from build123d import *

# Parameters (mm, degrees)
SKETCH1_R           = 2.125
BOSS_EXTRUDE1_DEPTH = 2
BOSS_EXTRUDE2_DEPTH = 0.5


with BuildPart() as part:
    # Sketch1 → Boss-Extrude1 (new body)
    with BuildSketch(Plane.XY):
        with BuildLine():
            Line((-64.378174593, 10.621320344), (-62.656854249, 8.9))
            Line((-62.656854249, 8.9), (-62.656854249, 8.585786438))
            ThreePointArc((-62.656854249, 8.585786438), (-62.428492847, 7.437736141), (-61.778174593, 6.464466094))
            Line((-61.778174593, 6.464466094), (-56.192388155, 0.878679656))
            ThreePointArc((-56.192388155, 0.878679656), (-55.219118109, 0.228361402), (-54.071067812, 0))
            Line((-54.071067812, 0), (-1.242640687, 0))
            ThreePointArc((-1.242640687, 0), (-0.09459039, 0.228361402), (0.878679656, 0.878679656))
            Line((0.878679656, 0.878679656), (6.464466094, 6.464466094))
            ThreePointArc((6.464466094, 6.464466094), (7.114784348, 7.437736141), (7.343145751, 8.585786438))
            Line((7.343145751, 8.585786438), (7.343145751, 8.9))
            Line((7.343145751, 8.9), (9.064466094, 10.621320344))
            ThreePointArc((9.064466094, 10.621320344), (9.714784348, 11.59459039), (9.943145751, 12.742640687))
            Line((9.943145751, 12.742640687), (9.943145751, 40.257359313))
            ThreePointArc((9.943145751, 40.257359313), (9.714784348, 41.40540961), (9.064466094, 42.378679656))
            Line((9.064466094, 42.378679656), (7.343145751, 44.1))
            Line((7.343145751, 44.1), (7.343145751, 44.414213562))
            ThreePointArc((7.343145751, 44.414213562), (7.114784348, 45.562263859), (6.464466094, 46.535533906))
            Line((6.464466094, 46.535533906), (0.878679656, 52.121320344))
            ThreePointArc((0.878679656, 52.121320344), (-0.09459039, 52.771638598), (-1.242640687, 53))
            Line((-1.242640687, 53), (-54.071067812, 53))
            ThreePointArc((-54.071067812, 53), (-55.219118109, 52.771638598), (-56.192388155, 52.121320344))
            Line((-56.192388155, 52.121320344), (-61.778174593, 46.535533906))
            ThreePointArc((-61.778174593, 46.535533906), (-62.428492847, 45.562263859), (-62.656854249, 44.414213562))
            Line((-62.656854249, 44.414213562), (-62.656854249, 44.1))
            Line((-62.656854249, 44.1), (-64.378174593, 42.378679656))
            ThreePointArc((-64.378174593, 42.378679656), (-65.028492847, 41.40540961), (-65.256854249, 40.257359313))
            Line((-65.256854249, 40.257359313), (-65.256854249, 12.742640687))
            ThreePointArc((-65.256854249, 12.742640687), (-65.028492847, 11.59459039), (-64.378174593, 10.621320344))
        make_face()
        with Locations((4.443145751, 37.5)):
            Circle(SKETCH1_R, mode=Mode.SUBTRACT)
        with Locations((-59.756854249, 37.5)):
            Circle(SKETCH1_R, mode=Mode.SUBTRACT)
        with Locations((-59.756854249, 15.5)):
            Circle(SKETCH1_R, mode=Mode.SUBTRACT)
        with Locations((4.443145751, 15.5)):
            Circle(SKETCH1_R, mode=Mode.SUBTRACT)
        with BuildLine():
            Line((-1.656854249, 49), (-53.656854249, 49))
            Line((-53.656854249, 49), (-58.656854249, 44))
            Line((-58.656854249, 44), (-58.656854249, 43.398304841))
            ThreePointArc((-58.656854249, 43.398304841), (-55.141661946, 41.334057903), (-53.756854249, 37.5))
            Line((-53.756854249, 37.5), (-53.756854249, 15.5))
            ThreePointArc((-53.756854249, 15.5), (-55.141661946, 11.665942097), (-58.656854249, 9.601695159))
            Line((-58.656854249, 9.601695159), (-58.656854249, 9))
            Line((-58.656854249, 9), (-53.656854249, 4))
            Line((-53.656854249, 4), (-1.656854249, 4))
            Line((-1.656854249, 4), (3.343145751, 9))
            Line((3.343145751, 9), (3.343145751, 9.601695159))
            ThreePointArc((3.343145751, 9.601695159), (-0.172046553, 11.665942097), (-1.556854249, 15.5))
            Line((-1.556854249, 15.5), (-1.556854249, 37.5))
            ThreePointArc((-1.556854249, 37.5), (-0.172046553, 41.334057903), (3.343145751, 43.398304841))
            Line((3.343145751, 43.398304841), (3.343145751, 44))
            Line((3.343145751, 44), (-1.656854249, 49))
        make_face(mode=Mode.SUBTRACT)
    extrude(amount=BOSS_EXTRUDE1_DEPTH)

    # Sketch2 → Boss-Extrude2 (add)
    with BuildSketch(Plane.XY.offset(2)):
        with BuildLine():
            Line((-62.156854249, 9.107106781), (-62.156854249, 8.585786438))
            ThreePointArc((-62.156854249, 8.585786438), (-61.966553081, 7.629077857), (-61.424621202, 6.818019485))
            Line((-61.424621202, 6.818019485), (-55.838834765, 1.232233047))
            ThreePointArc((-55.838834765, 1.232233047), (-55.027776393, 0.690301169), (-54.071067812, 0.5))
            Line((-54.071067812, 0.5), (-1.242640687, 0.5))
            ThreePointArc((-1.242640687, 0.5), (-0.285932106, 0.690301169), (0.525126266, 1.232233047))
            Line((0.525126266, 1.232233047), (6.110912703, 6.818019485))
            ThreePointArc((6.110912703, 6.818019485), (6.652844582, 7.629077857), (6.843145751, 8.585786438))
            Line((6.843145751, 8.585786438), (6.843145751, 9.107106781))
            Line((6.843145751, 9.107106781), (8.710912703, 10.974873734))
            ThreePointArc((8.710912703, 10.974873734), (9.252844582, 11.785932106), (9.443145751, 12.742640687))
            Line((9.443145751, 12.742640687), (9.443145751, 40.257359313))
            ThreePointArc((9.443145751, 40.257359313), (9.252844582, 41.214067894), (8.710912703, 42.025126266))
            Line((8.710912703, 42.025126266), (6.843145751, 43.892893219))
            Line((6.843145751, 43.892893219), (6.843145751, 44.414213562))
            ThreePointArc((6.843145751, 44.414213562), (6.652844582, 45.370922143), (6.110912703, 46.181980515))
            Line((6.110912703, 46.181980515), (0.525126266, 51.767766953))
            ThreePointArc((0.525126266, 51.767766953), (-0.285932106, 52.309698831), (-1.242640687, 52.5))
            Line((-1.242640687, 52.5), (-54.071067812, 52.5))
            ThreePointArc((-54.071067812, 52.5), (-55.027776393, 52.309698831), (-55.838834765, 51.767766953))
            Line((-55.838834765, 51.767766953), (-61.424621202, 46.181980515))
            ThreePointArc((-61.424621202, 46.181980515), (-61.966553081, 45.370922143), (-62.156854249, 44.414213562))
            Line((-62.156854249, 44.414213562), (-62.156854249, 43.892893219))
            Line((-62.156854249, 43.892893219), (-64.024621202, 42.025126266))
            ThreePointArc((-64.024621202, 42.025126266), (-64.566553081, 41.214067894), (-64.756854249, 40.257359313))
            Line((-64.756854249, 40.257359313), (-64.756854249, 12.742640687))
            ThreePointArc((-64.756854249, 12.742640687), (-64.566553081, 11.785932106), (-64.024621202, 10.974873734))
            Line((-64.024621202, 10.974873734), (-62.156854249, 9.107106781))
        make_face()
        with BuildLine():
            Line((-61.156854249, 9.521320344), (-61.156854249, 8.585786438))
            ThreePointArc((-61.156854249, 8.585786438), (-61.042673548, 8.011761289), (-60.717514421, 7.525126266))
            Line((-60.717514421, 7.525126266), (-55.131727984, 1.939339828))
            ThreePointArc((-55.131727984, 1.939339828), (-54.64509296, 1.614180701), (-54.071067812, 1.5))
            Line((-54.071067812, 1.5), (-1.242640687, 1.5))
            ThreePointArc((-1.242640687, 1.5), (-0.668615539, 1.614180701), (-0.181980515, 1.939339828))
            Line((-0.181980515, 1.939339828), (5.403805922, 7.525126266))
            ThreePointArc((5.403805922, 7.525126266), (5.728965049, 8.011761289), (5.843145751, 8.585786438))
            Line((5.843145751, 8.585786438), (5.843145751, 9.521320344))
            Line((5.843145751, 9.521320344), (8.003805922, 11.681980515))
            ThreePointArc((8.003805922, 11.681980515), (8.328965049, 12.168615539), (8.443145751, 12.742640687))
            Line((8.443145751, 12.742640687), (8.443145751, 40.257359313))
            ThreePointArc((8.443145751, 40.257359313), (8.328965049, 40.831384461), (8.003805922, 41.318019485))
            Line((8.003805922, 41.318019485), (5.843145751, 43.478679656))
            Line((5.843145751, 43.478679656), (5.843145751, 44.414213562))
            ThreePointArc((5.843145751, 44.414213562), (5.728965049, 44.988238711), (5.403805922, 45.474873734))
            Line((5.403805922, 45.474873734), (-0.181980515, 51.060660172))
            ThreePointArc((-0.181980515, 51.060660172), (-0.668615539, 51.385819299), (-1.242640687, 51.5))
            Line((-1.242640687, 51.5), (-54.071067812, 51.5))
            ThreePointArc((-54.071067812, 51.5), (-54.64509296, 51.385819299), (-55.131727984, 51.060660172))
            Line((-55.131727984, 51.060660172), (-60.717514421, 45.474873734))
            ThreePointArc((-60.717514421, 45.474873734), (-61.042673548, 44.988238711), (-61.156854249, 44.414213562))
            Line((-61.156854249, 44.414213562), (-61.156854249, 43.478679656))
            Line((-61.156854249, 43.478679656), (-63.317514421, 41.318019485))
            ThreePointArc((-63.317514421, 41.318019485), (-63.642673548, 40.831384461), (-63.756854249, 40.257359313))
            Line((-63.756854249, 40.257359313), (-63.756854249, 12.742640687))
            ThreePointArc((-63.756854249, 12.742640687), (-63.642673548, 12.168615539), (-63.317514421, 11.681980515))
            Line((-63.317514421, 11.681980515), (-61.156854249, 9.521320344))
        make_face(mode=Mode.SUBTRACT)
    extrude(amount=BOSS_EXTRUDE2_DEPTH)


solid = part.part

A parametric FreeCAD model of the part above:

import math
import FreeCAD as App
import Part
import Sketcher
from FreeCAD import Vector

doc = App.newDocument("Part")
params = doc.addObject("Spreadsheet::Sheet", "Params")
for row, (alias, value) in enumerate([
    ("sketch1_radius", "3 mm"),
    ("sketch1_radius2", "6 mm"),
    ("sketch1_diameter", "4.25 mm"),
    ("sketch1_width", "52 mm"),
    ("sketch1_height", "22 mm"),
    ("pad1_length", "2 mm"),
    ("sketch2_radius", "2.5 mm"),
    ("sketch2_radius2", "1.5 mm"),
    ("pad2_length", "0.5 mm"),
], start=1):
    params.set(f"A{row}", alias)
    params.set(f"B{row}", "=" + value)
    params.setAlias(f"B{row}", alias)

body = doc.addObject("PartDesign::Body", "Body")

# Sketch on XY plane
sketch1 = body.newObject("Sketcher::SketchObject", "Sketch")
sketch1.AttachmentSupport = (doc.getObject("XY_Plane"), [""])
sketch1.MapMode = "FlatFace"
sketch1.addGeometry(Part.LineSegment(Vector(-64.38, 10.62, 0), Vector(-62.66, 8.9, 0)), False)
sketch1.addGeometry(Part.LineSegment(Vector(-62.66, 8.9, 0), Vector(-62.66, 8.59, 0)), False)
sketch1.addGeometry(Part.ArcOfCircle(Part.Circle(Vector(-59.66, 8.59, 0), Vector(0, 0, 1), 3), math.radians(180), math.radians(225)), False)
sketch1.addGeometry(Part.LineSegment(Vector(-61.78, 6.46, 0), Vector(-56.19, 0.88, 0)), False)
sketch1.addGeometry(Part.ArcOfCircle(Part.Circle(Vector(-54.07, 3, 0), Vector(0, 0, 1), 3), math.radians(-135), math.radians(-90)), False)
sketch1.addGeometry(Part.LineSegment(Vector(-54.07, 0, 0), Vector(-1.24, 0, 0)), False)
sketch1.addGeometry(Part.ArcOfCircle(Part.Circle(Vector(-1.24, 3, 0), Vector(0, 0, 1), 3), math.radians(-90), math.radians(-45)), False)
sketch1.addGeometry(Part.LineSegment(Vector(0.88, 0.88, 0), Vector(6.46, 6.46, 0)), False)
sketch1.addGeometry(Part.ArcOfCircle(Part.Circle(Vector(4.34, 8.59, 0), Vector(0, 0, 1), 3), math.radians(-45), math.radians(0)), False)
sketch1.addGeometry(Part.LineSegment(Vector(7.34, 8.59, 0), Vector(7.34, 8.9, 0)), False)
sketch1.addGeometry(Part.LineSegment(Vector(7.34, 8.9, 0), Vector(9.06, 10.62, 0)), False)
sketch1.addGeometry(Part.ArcOfCircle(Part.Circle(Vector(6.94, 12.74, 0), Vector(0, 0, 1), 3), math.radians(-45), math.radians(0)), False)
sketch1.addGeometry(Part.LineSegment(Vector(9.94, 12.74, 0), Vector(9.94, 40.26, 0)), False)
sketch1.addGeometry(Part.ArcOfCircle(Part.Circle(Vector(6.94, 40.26, 0), Vector(0, 0, 1), 3), math.radians(0), math.radians(45)), False)
sketch1.addGeometry(Part.LineSegment(Vector(9.06, 42.38, 0), Vector(7.34, 44.1, 0)), False)
sketch1.addGeometry(Part.LineSegment(Vector(7.34, 44.1, 0), Vector(7.34, 44.41, 0)), False)
sketch1.addGeometry(Part.ArcOfCircle(Part.Circle(Vector(4.34, 44.41, 0), Vector(0, 0, 1), 3), math.radians(0), math.radians(45)), False)
sketch1.addGeometry(Part.LineSegment(Vector(6.46, 46.54, 0), Vector(0.88, 52.12, 0)), False)
sketch1.addGeometry(Part.ArcOfCircle(Part.Circle(Vector(-1.24, 50, 0), Vector(0, 0, 1), 3), math.radians(45), math.radians(90)), False)
sketch1.addGeometry(Part.LineSegment(Vector(-1.24, 53, 0), Vector(-54.07, 53, 0)), False)
sketch1.addGeometry(Part.ArcOfCircle(Part.Circle(Vector(-54.07, 50, 0), Vector(0, 0, 1), 3), math.radians(90), math.radians(135)), False)
sketch1.addGeometry(Part.LineSegment(Vector(-56.19, 52.12, 0), Vector(-61.78, 46.54, 0)), False)
sketch1.addGeometry(Part.ArcOfCircle(Part.Circle(Vector(-59.66, 44.41, 0), Vector(0, 0, 1), 3), math.radians(135), math.radians(180)), False)
sketch1.addGeometry(Part.LineSegment(Vector(-62.66, 44.41, 0), Vector(-62.66, 44.1, 0)), False)
sketch1.addGeometry(Part.LineSegment(Vector(-62.66, 44.1, 0), Vector(-64.38, 42.38, 0)), False)
sketch1.addGeometry(Part.ArcOfCircle(Part.Circle(Vector(-62.26, 40.26, 0), Vector(0, 0, 1), 3), math.radians(135), math.radians(180)), False)
sketch1.addGeometry(Part.LineSegment(Vector(-65.26, 40.26, 0), Vector(-65.26, 12.74, 0)), False)
sketch1.addGeometry(Part.ArcOfCircle(Part.Circle(Vector(-62.26, 12.74, 0), Vector(0, 0, 1), 3), math.radians(180), math.radians(225)), False)
sketch1.addGeometry(Part.Circle(Vector(-59.76, 15.5, 0), Vector(0, 0, 1), 2.12), False)
sketch1.addGeometry(Part.Circle(Vector(4.44, 15.5, 0), Vector(0, 0, 1), 2.12), False)
sketch1.addGeometry(Part.Circle(Vector(-59.76, 37.5, 0), Vector(0, 0, 1), 2.12), False)
sketch1.addGeometry(Part.LineSegment(Vector(-53.66, 49, 0), Vector(-1.66, 49, 0)), False)
sketch1.addGeometry(Part.LineSegment(Vector(-1.66, 49, 0), Vector(3.34, 44, 0)), False)
sketch1.addGeometry(Part.LineSegment(Vector(3.34, 44, 0), Vector(3.34, 43.4, 0)), False)
sketch1.addGeometry(Part.ArcOfCircle(Part.Circle(Vector(4.44, 37.5, 0), Vector(0, 0, 1), 6), math.radians(101), math.radians(180)), False)
sketch1.addGeometry(Part.LineSegment(Vector(-1.56, 37.5, 0), Vector(-1.56, 15.5, 0)), False)
sketch1.addGeometry(Part.ArcOfCircle(Part.Circle(Vector(4.44, 15.5, 0), Vector(0, 0, 1), 6), math.radians(180), math.radians(259)), False)
sketch1.addGeometry(Part.LineSegment(Vector(3.34, 9.6, 0), Vector(3.34, 9, 0)), False)
sketch1.addGeometry(Part.LineSegment(Vector(3.34, 9, 0), Vector(-1.66, 4, 0)), False)
sketch1.addGeometry(Part.LineSegment(Vector(-1.66, 4, 0), Vector(-53.66, 4, 0)), False)
sketch1.addGeometry(Part.LineSegment(Vector(-53.66, 4, 0), Vector(-58.66, 9, 0)), False)
sketch1.addGeometry(Part.LineSegment(Vector(-58.66, 9, 0), Vector(-58.66, 9.6, 0)), False)
sketch1.addGeometry(Part.ArcOfCircle(Part.Circle(Vector(-59.76, 15.5, 0), Vector(0, 0, 1), 6), math.radians(-79), math.radians(0)), False)
sketch1.addGeometry(Part.LineSegment(Vector(-53.76, 15.5, 0), Vector(-53.76, 37.5, 0)), False)
sketch1.addGeometry(Part.ArcOfCircle(Part.Circle(Vector(-59.76, 37.5, 0), Vector(0, 0, 1), 6), math.radians(0), math.radians(79)), False)
sketch1.addGeometry(Part.LineSegment(Vector(-58.66, 43.4, 0), Vector(-58.66, 44, 0)), False)
sketch1.addGeometry(Part.LineSegment(Vector(-58.66, 44, 0), Vector(-53.66, 49, 0)), False)
sketch1.addGeometry(Part.Circle(Vector(4.44, 37.5, 0), Vector(0, 0, 1), 2.12), False)
sketch1.addConstraint(Sketcher.Constraint("Coincident", 0, 2, 1, 1))
sketch1.addConstraint(Sketcher.Constraint("Tangent", 1, 2, 2, 1))
sketch1.addConstraint(Sketcher.Constraint("Tangent", 2, 2, 3, 1))
sketch1.addConstraint(Sketcher.Constraint("Tangent", 3, 2, 4, 1))
sketch1.addConstraint(Sketcher.Constraint("Tangent", 4, 2, 5, 1))
sketch1.addConstraint(Sketcher.Constraint("Tangent", 5, 2, 6, 1))
sketch1.addConstraint(Sketcher.Constraint("Tangent", 6, 2, 7, 1))
sketch1.addConstraint(Sketcher.Constraint("Tangent", 7, 2, 8, 1))
sketch1.addConstraint(Sketcher.Constraint("Tangent", 8, 2, 9, 1))
sketch1.addConstraint(Sketcher.Constraint("Coincident", 9, 2, 10, 1))
sketch1.addConstraint(Sketcher.Constraint("Tangent", 10, 2, 11, 1))
sketch1.addConstraint(Sketcher.Constraint("Tangent", 11, 2, 12, 1))
sketch1.addConstraint(Sketcher.Constraint("Tangent", 12, 2, 13, 1))
sketch1.addConstraint(Sketcher.Constraint("Tangent", 13, 2, 14, 1))
sketch1.addConstraint(Sketcher.Constraint("Coincident", 14, 2, 15, 1))
sketch1.addConstraint(Sketcher.Constraint("Tangent", 15, 2, 16, 1))
sketch1.addConstraint(Sketcher.Constraint("Tangent", 16, 2, 17, 1))
sketch1.addConstraint(Sketcher.Constraint("Tangent", 17, 2, 18, 1))
sketch1.addConstraint(Sketcher.Constraint("Tangent", 18, 2, 19, 1))
sketch1.addConstraint(Sketcher.Constraint("Tangent", 19, 2, 20, 1))
sketch1.addConstraint(Sketcher.Constraint("Tangent", 20, 2, 21, 1))
sketch1.addConstraint(Sketcher.Constraint("Tangent", 21, 2, 22, 1))
sketch1.addConstraint(Sketcher.Constraint("Tangent", 22, 2, 23, 1))
sketch1.addConstraint(Sketcher.Constraint("Coincident", 23, 2, 24, 1))
sketch1.addConstraint(Sketcher.Constraint("Tangent", 24, 2, 25, 1))
sketch1.addConstraint(Sketcher.Constraint("Tangent", 25, 2, 26, 1))
sketch1.addConstraint(Sketcher.Constraint("Tangent", 26, 2, 27, 1))
sketch1.addConstraint(Sketcher.Constraint("Tangent", 27, 2, 0, 1))
sketch1.addConstraint(Sketcher.Constraint("Coincident", 31, 2, 32, 1))
sketch1.addConstraint(Sketcher.Constraint("Coincident", 32, 2, 33, 1))
sketch1.addConstraint(Sketcher.Constraint("Coincident", 33, 2, 34, 1))
sketch1.addConstraint(Sketcher.Constraint("Tangent", 34, 2, 35, 1))
sketch1.addConstraint(Sketcher.Constraint("Tangent", 35, 2, 36, 1))
sketch1.addConstraint(Sketcher.Constraint("Coincident", 36, 2, 37, 1))
sketch1.addConstraint(Sketcher.Constraint("Coincident", 37, 2, 38, 1))
sketch1.addConstraint(Sketcher.Constraint("Coincident", 38, 2, 39, 1))
sketch1.addConstraint(Sketcher.Constraint("Coincident", 39, 2, 40, 1))
sketch1.addConstraint(Sketcher.Constraint("Coincident", 40, 2, 41, 1))
sketch1.addConstraint(Sketcher.Constraint("Coincident", 41, 2, 42, 1))
sketch1.addConstraint(Sketcher.Constraint("Tangent", 42, 2, 43, 1))
sketch1.addConstraint(Sketcher.Constraint("Tangent", 43, 2, 44, 1))
sketch1.addConstraint(Sketcher.Constraint("Coincident", 44, 2, 45, 1))
sketch1.addConstraint(Sketcher.Constraint("Coincident", 45, 2, 46, 1))
sketch1.addConstraint(Sketcher.Constraint("Coincident", 46, 2, 31, 1))
sketch1.addConstraint(Sketcher.Constraint("Vertical", 1))
sketch1.addConstraint(Sketcher.Constraint("Horizontal", 5))
sketch1.addConstraint(Sketcher.Constraint("Vertical", 9))
sketch1.addConstraint(Sketcher.Constraint("Vertical", 12))
sketch1.addConstraint(Sketcher.Constraint("Vertical", 15))
sketch1.addConstraint(Sketcher.Constraint("Horizontal", 19))
sketch1.addConstraint(Sketcher.Constraint("Vertical", 23))
sketch1.addConstraint(Sketcher.Constraint("Vertical", 26))
sketch1.addConstraint(Sketcher.Constraint("Horizontal", 31))
sketch1.addConstraint(Sketcher.Constraint("Vertical", 33))
sketch1.addConstraint(Sketcher.Constraint("Vertical", 35))
sketch1.addConstraint(Sketcher.Constraint("Vertical", 37))
sketch1.addConstraint(Sketcher.Constraint("Horizontal", 39))
sketch1.addConstraint(Sketcher.Constraint("Vertical", 41))
sketch1.addConstraint(Sketcher.Constraint("Vertical", 43))
sketch1.addConstraint(Sketcher.Constraint("Vertical", 45))
sketch1.addConstraint(Sketcher.Constraint("Coincident", 36, 3, 29, 3))
sketch1.addConstraint(Sketcher.Constraint("Coincident", 42, 3, 28, 3))
sketch1.addConstraint(Sketcher.Constraint("Coincident", 44, 3, 30, 3))
sketch1.addConstraint(Sketcher.Constraint("Coincident", 47, 3, 34, 3))
sketch1.addConstraint(Sketcher.Constraint("Equal", 2, 4))
sketch1.addConstraint(Sketcher.Constraint("Equal", 4, 6))
sketch1.addConstraint(Sketcher.Constraint("Equal", 6, 8))
sketch1.addConstraint(Sketcher.Constraint("Equal", 8, 11))
sketch1.addConstraint(Sketcher.Constraint("Equal", 11, 13))
sketch1.addConstraint(Sketcher.Constraint("Equal", 13, 16))
sketch1.addConstraint(Sketcher.Constraint("Equal", 16, 18))
sketch1.addConstraint(Sketcher.Constraint("Equal", 18, 20))
sketch1.addConstraint(Sketcher.Constraint("Equal", 20, 22))
sketch1.addConstraint(Sketcher.Constraint("Equal", 22, 25))
sketch1.addConstraint(Sketcher.Constraint("Equal", 25, 27))
sketch1.addConstraint(Sketcher.Constraint("Equal", 28, 29))
sketch1.addConstraint(Sketcher.Constraint("Equal", 29, 30))
sketch1.addConstraint(Sketcher.Constraint("Equal", 34, 36))
sketch1.addConstraint(Sketcher.Constraint("Equal", 36, 42))
sketch1.addConstraint(Sketcher.Constraint("Equal", 42, 44))
sketch1.addConstraint(Sketcher.Constraint("Equal", 30, 47))
sketch1.addConstraint(Sketcher.Constraint("PointOnObject", 4, 2, -1))
sketch1.addConstraint(Sketcher.Constraint("Parallel", 0, 3))
sketch1.addConstraint(Sketcher.Constraint("Perpendicular", 3, 7))
sketch1.addConstraint(Sketcher.Constraint("Parallel", 7, 10))
sketch1.addConstraint(Sketcher.Constraint("Perpendicular", 10, 14))
sketch1.addConstraint(Sketcher.Constraint("Parallel", 14, 17))
sketch1.addConstraint(Sketcher.Constraint("Perpendicular", 17, 21))
sketch1.addConstraint(Sketcher.Constraint("Parallel", 21, 24))
sketch1.addConstraint(Sketcher.Constraint("Perpendicular", 24, 32))
sketch1.addConstraint(Sketcher.Constraint("Perpendicular", 32, 38))
sketch1.addConstraint(Sketcher.Constraint("Perpendicular", 38, 40))
sketch1.addConstraint(Sketcher.Constraint("Perpendicular", 40, 46))
sketch1.addConstraint(Sketcher.Constraint("Horizontal", 2, 3, 8, 3))
sketch1.addConstraint(Sketcher.Constraint("Horizontal", 16, 3, 22, 3))
sketch1.addConstraint(Sketcher.Constraint("Horizontal", 13, 3, 25, 3))
sketch1.addConstraint(Sketcher.Constraint("Horizontal", 11, 3, 27, 3))
sketch1.addConstraint(Sketcher.Constraint("Horizontal", 28, 3, 29, 3))
sketch1.addConstraint(Sketcher.Constraint("Horizontal", 30, 3, 34, 3))
sketch1.addConstraint(Sketcher.Constraint("Horizontal", 3, 2, 6, 2))
sketch1.addConstraint(Sketcher.Constraint("Horizontal", 0, 2, 9, 2))
sketch1.addConstraint(Sketcher.Constraint("Horizontal", 14, 2, 23, 2))
sketch1.addConstraint(Sketcher.Constraint("Horizontal", 37, 2, 40, 2))
sketch1.addConstraint(Sketcher.Constraint("Horizontal", 36, 2, 41, 2))
sketch1.addConstraint(Sketcher.Constraint("Horizontal", 33, 2, 44, 2))
sketch1.addConstraint(Sketcher.Constraint("Horizontal", 32, 2, 45, 2))
sketch1.addConstraint(Sketcher.Constraint("Vertical", 8, 3, 16, 3))
sketch1.addConstraint(Sketcher.Constraint("Vertical", 6, 3, 18, 3))
sketch1.addConstraint(Sketcher.Constraint("Vertical", 33, 2, 36, 2))
sketch1.addConstraint(Sketcher.Constraint("Vertical", 31, 2, 38, 2))
sketch1.addConstraint(Sketcher.Constraint("Equal", 9, 15))
sketch1.addConstraint(Sketcher.Constraint("Equal", 33, 37))
sketch1.addConstraint(Sketcher.Constraint("Radius", 2, 3.0))
sketch1.addConstraint(Sketcher.Constraint("Radius", 34, 6.0))
sketch1.addConstraint(Sketcher.Constraint("Diameter", 28, 4.25))
sketch1.addConstraint(Sketcher.Constraint("DistanceX", 31, 1, 31, 2, 52.0))
sketch1.addConstraint(Sketcher.Constraint("DistanceY", 35, 2, 35, 1, 22.0))
sketch1.addConstraint(Sketcher.Constraint("DistanceY", -1, 1, 18, 3, 50.0))
sketch1.addConstraint(Sketcher.Constraint("DistanceY", -1, 1, 31, 2, 49.0))
sketch1.addConstraint(Sketcher.Constraint("DistanceY", -1, 1, 32, 2, 44.0))
sketch1.addConstraint(Sketcher.Constraint("DistanceY", -1, 1, 37, 2, 9.0))
sketch1.addConstraint(Sketcher.Constraint("DistanceY", -1, 1, 0, 2, 8.9))
sketch1.addConstraint(Sketcher.Constraint("DistanceY", 12, 1, 12, 2, 27.514719))
sketch1.addConstraint(Sketcher.Constraint("DistanceX", 5, 1, 5, 2, 52.828427))
sketch1.addConstraint(Sketcher.Constraint("DistanceY", 1, 2, 1, 1, 0.314214))
sketch1.addConstraint(Sketcher.Constraint("DistanceY", 33, 2, 33, 1, 0.601695))
sketch1.addConstraint(Sketcher.Constraint("DistanceX", 6, 3, -1, 1, 1.242641))
sketch1.addConstraint(Sketcher.Constraint("DistanceX", 28, 3, -1, 1, 59.756854))
sketch1.setExpression("Constraints[112]", "Params.sketch1_radius")
sketch1.setExpression("Constraints[113]", "Params.sketch1_radius2")
sketch1.setExpression("Constraints[114]", "Params.sketch1_diameter")
sketch1.setExpression("Constraints[115]", "Params.sketch1_width")
sketch1.setExpression("Constraints[116]", "Params.sketch1_height")
pad1 = body.newObject("PartDesign::Pad", "Pad")
pad1.Profile = sketch1
pad1.setExpression("Length", "Params.pad1_length")

# Sketch on XY plane
sketch2 = body.newObject("Sketcher::SketchObject", "Sketch001")
sketch2.AttachmentSupport = (doc.getObject("XY_Plane"), [""])
sketch2.MapMode = "FlatFace"
sketch2.AttachmentOffset = App.Placement(Vector(0, 0, 2), App.Rotation())
sketch2.addGeometry(Part.LineSegment(Vector(-62.2, 9.1, 0), Vector(-62.2, 8.6, 0)), False)
sketch2.addGeometry(Part.ArcOfCircle(Part.Circle(Vector(-59.7, 8.6, 0), Vector(0, 0, 1), 2.5), math.radians(180), math.radians(225)), False)
sketch2.addGeometry(Part.LineSegment(Vector(-61.4, 6.8, 0), Vector(-55.8, 1.2, 0)), False)
sketch2.addGeometry(Part.ArcOfCircle(Part.Circle(Vector(-54.1, 3, 0), Vector(0, 0, 1), 2.5), math.radians(-135), math.radians(-90)), False)
sketch2.addGeometry(Part.LineSegment(Vector(-54.1, 0.5, 0), Vector(-1.2, 0.5, 0)), False)
sketch2.addGeometry(Part.ArcOfCircle(Part.Circle(Vector(-1.2, 3, 0), Vector(0, 0, 1), 2.5), math.radians(-90), math.radians(-45)), False)
sketch2.addGeometry(Part.LineSegment(Vector(0.5, 1.2, 0), Vector(6.1, 6.8, 0)), False)
sketch2.addGeometry(Part.ArcOfCircle(Part.Circle(Vector(4.3, 8.6, 0), Vector(0, 0, 1), 2.5), math.radians(-45), math.radians(0)), False)
sketch2.addGeometry(Part.LineSegment(Vector(6.8, 8.6, 0), Vector(6.8, 9.1, 0)), False)
sketch2.addGeometry(Part.LineSegment(Vector(6.8, 9.1, 0), Vector(8.7, 11, 0)), False)
sketch2.addGeometry(Part.ArcOfCircle(Part.Circle(Vector(6.9, 12.7, 0), Vector(0, 0, 1), 2.5), math.radians(-45), math.radians(0)), False)
sketch2.addGeometry(Part.LineSegment(Vector(9.4, 12.7, 0), Vector(9.4, 40.3, 0)), False)
sketch2.addGeometry(Part.ArcOfCircle(Part.Circle(Vector(6.9, 40.3, 0), Vector(0, 0, 1), 2.5), math.radians(0), math.radians(45)), False)
sketch2.addGeometry(Part.LineSegment(Vector(8.7, 42, 0), Vector(6.8, 43.9, 0)), False)
sketch2.addGeometry(Part.LineSegment(Vector(6.8, 43.9, 0), Vector(6.8, 44.4, 0)), False)
sketch2.addGeometry(Part.ArcOfCircle(Part.Circle(Vector(4.3, 44.4, 0), Vector(0, 0, 1), 2.5), math.radians(0), math.radians(45)), False)
sketch2.addGeometry(Part.LineSegment(Vector(6.1, 46.2, 0), Vector(0.5, 51.8, 0)), False)
sketch2.addGeometry(Part.ArcOfCircle(Part.Circle(Vector(-1.2, 50, 0), Vector(0, 0, 1), 2.5), math.radians(45), math.radians(90)), False)
sketch2.addGeometry(Part.LineSegment(Vector(-1.2, 52.5, 0), Vector(-54.1, 52.5, 0)), False)
sketch2.addGeometry(Part.ArcOfCircle(Part.Circle(Vector(-54.1, 50, 0), Vector(0, 0, 1), 2.5), math.radians(90), math.radians(135)), False)
sketch2.addGeometry(Part.LineSegment(Vector(-55.8, 51.8, 0), Vector(-61.4, 46.2, 0)), False)
sketch2.addGeometry(Part.ArcOfCircle(Part.Circle(Vector(-59.7, 44.4, 0), Vector(0, 0, 1), 2.5), math.radians(135), math.radians(180)), False)
sketch2.addGeometry(Part.LineSegment(Vector(-62.2, 44.4, 0), Vector(-62.2, 43.9, 0)), False)
sketch2.addGeometry(Part.LineSegment(Vector(-62.2, 43.9, 0), Vector(-64, 42, 0)), False)
sketch2.addGeometry(Part.ArcOfCircle(Part.Circle(Vector(-62.3, 40.3, 0), Vector(0, 0, 1), 2.5), math.radians(135), math.radians(180)), False)
sketch2.addGeometry(Part.LineSegment(Vector(-64.8, 40.3, 0), Vector(-64.8, 12.7, 0)), False)
sketch2.addGeometry(Part.ArcOfCircle(Part.Circle(Vector(-62.3, 12.7, 0), Vector(0, 0, 1), 2.5), math.radians(180), math.radians(225)), False)
sketch2.addGeometry(Part.LineSegment(Vector(-64, 11, 0), Vector(-62.2, 9.1, 0)), False)
sketch2.addGeometry(Part.LineSegment(Vector(-61.2, 8.6, 0), Vector(-61.2, 9.5, 0)), False)
sketch2.addGeometry(Part.LineSegment(Vector(-61.2, 9.5, 0), Vector(-63.3, 11.7, 0)), False)
sketch2.addGeometry(Part.ArcOfCircle(Part.Circle(Vector(-62.3, 12.7, 0), Vector(0, 0, 1), 1.5), math.radians(180), math.radians(225)), False)
sketch2.addGeometry(Part.LineSegment(Vector(-63.8, 12.7, 0), Vector(-63.8, 40.3, 0)), False)
sketch2.addGeometry(Part.ArcOfCircle(Part.Circle(Vector(-62.3, 40.3, 0), Vector(0, 0, 1), 1.5), math.radians(135), math.radians(180)), False)
sketch2.addGeometry(Part.LineSegment(Vector(-63.3, 41.3, 0), Vector(-61.2, 43.5, 0)), False)
sketch2.addGeometry(Part.LineSegment(Vector(-61.2, 43.5, 0), Vector(-61.2, 44.4, 0)), False)
sketch2.addGeometry(Part.ArcOfCircle(Part.Circle(Vector(-59.7, 44.4, 0), Vector(0, 0, 1), 1.5), math.radians(135), math.radians(180)), False)
sketch2.addGeometry(Part.LineSegment(Vector(-60.7, 45.5, 0), Vector(-55.1, 51.1, 0)), False)
sketch2.addGeometry(Part.ArcOfCircle(Part.Circle(Vector(-54.1, 50, 0), Vector(0, 0, 1), 1.5), math.radians(90), math.radians(135)), False)
sketch2.addGeometry(Part.LineSegment(Vector(-54.1, 51.5, 0), Vector(-1.2, 51.5, 0)), False)
sketch2.addGeometry(Part.ArcOfCircle(Part.Circle(Vector(-1.2, 50, 0), Vector(0, 0, 1), 1.5), math.radians(45), math.radians(90)), False)
sketch2.addGeometry(Part.LineSegment(Vector(-0.2, 51.1, 0), Vector(5.4, 45.5, 0)), False)
sketch2.addGeometry(Part.ArcOfCircle(Part.Circle(Vector(4.3, 44.4, 0), Vector(0, 0, 1), 1.5), math.radians(0), math.radians(45)), False)
sketch2.addGeometry(Part.LineSegment(Vector(5.8, 44.4, 0), Vector(5.8, 43.5, 0)), False)
sketch2.addGeometry(Part.LineSegment(Vector(5.8, 43.5, 0), Vector(8, 41.3, 0)), False)
sketch2.addGeometry(Part.ArcOfCircle(Part.Circle(Vector(6.9, 40.3, 0), Vector(0, 0, 1), 1.5), math.radians(0), math.radians(45)), False)
sketch2.addGeometry(Part.LineSegment(Vector(8.4, 40.3, 0), Vector(8.4, 12.7, 0)), False)
sketch2.addGeometry(Part.ArcOfCircle(Part.Circle(Vector(6.9, 12.7, 0), Vector(0, 0, 1), 1.5), math.radians(-45), math.radians(0)), False)
sketch2.addGeometry(Part.LineSegment(Vector(8, 11.7, 0), Vector(5.8, 9.5, 0)), False)
sketch2.addGeometry(Part.LineSegment(Vector(5.8, 9.5, 0), Vector(5.8, 8.6, 0)), False)
sketch2.addGeometry(Part.ArcOfCircle(Part.Circle(Vector(4.3, 8.6, 0), Vector(0, 0, 1), 1.5), math.radians(-45), math.radians(0)), False)
sketch2.addGeometry(Part.LineSegment(Vector(5.4, 7.5, 0), Vector(-0.2, 1.9, 0)), False)
sketch2.addGeometry(Part.ArcOfCircle(Part.Circle(Vector(-1.2, 3, 0), Vector(0, 0, 1), 1.5), math.radians(-90), math.radians(-45)), False)
sketch2.addGeometry(Part.LineSegment(Vector(-1.2, 1.5, 0), Vector(-54.1, 1.5, 0)), False)
sketch2.addGeometry(Part.ArcOfCircle(Part.Circle(Vector(-54.1, 3, 0), Vector(0, 0, 1), 1.5), math.radians(-135), math.radians(-90)), False)
sketch2.addGeometry(Part.LineSegment(Vector(-55.1, 1.9, 0), Vector(-60.7, 7.5, 0)), False)
sketch2.addGeometry(Part.ArcOfCircle(Part.Circle(Vector(-59.7, 8.6, 0), Vector(0, 0, 1), 1.5), math.radians(180), math.radians(225)), False)
sketch2.addConstraint(Sketcher.Constraint("Tangent", 0, 2, 1, 1))
sketch2.addConstraint(Sketcher.Constraint("Tangent", 1, 2, 2, 1))
sketch2.addConstraint(Sketcher.Constraint("Tangent", 2, 2, 3, 1))
sketch2.addConstraint(Sketcher.Constraint("Tangent", 3, 2, 4, 1))
sketch2.addConstraint(Sketcher.Constraint("Tangent", 4, 2, 5, 1))
sketch2.addConstraint(Sketcher.Constraint("Tangent", 5, 2, 6, 1))
sketch2.addConstraint(Sketcher.Constraint("Tangent", 6, 2, 7, 1))
sketch2.addConstraint(Sketcher.Constraint("Tangent", 7, 2, 8, 1))
sketch2.addConstraint(Sketcher.Constraint("Coincident", 8, 2, 9, 1))
sketch2.addConstraint(Sketcher.Constraint("Tangent", 9, 2, 10, 1))
sketch2.addConstraint(Sketcher.Constraint("Tangent", 10, 2, 11, 1))
sketch2.addConstraint(Sketcher.Constraint("Tangent", 11, 2, 12, 1))
sketch2.addConstraint(Sketcher.Constraint("Tangent", 12, 2, 13, 1))
sketch2.addConstraint(Sketcher.Constraint("Coincident", 13, 2, 14, 1))
sketch2.addConstraint(Sketcher.Constraint("Tangent", 14, 2, 15, 1))
sketch2.addConstraint(Sketcher.Constraint("Tangent", 15, 2, 16, 1))
sketch2.addConstraint(Sketcher.Constraint("Tangent", 16, 2, 17, 1))
sketch2.addConstraint(Sketcher.Constraint("Tangent", 17, 2, 18, 1))
sketch2.addConstraint(Sketcher.Constraint("Tangent", 18, 2, 19, 1))
sketch2.addConstraint(Sketcher.Constraint("Tangent", 19, 2, 20, 1))
sketch2.addConstraint(Sketcher.Constraint("Tangent", 20, 2, 21, 1))
sketch2.addConstraint(Sketcher.Constraint("Tangent", 21, 2, 22, 1))
sketch2.addConstraint(Sketcher.Constraint("Coincident", 22, 2, 23, 1))
sketch2.addConstraint(Sketcher.Constraint("Tangent", 23, 2, 24, 1))
sketch2.addConstraint(Sketcher.Constraint("Tangent", 24, 2, 25, 1))
sketch2.addConstraint(Sketcher.Constraint("Tangent", 25, 2, 26, 1))
sketch2.addConstraint(Sketcher.Constraint("Tangent", 26, 2, 27, 1))
sketch2.addConstraint(Sketcher.Constraint("Coincident", 27, 2, 0, 1))
sketch2.addConstraint(Sketcher.Constraint("Coincident", 28, 2, 29, 1))
sketch2.addConstraint(Sketcher.Constraint("Tangent", 29, 2, 30, 2))
sketch2.addConstraint(Sketcher.Constraint("Tangent", 30, 1, 31, 1))
sketch2.addConstraint(Sketcher.Constraint("Tangent", 31, 2, 32, 2))
sketch2.addConstraint(Sketcher.Constraint("Tangent", 32, 1, 33, 1))
sketch2.addConstraint(Sketcher.Constraint("Coincident", 33, 2, 34, 1))
sketch2.addConstraint(Sketcher.Constraint("Tangent", 34, 2, 35, 2))
sketch2.addConstraint(Sketcher.Constraint("Tangent", 35, 1, 36, 1))
sketch2.addConstraint(Sketcher.Constraint("Tangent", 36, 2, 37, 2))
sketch2.addConstraint(Sketcher.Constraint("Tangent", 37, 1, 38, 1))
sketch2.addConstraint(Sketcher.Constraint("Tangent", 38, 2, 39, 2))
sketch2.addConstraint(Sketcher.Constraint("Tangent", 39, 1, 40, 1))
sketch2.addConstraint(Sketcher.Constraint("Tangent", 40, 2, 41, 2))
sketch2.addConstraint(Sketcher.Constraint("Tangent", 41, 1, 42, 1))
sketch2.addConstraint(Sketcher.Constraint("Coincident", 42, 2, 43, 1))
sketch2.addConstraint(Sketcher.Constraint("Tangent", 43, 2, 44, 2))
sketch2.addConstraint(Sketcher.Constraint("Tangent", 44, 1, 45, 1))
sketch2.addConstraint(Sketcher.Constraint("Tangent", 45, 2, 46, 2))
sketch2.addConstraint(Sketcher.Constraint("Tangent", 46, 1, 47, 1))
sketch2.addConstraint(Sketcher.Constraint("Coincident", 47, 2, 48, 1))
sketch2.addConstraint(Sketcher.Constraint("Tangent", 48, 2, 49, 2))
sketch2.addConstraint(Sketcher.Constraint("Tangent", 49, 1, 50, 1))
sketch2.addConstraint(Sketcher.Constraint("Tangent", 50, 2, 51, 2))
sketch2.addConstraint(Sketcher.Constraint("Tangent", 51, 1, 52, 1))
sketch2.addConstraint(Sketcher.Constraint("Tangent", 52, 2, 53, 2))
sketch2.addConstraint(Sketcher.Constraint("Tangent", 53, 1, 54, 1))
sketch2.addConstraint(Sketcher.Constraint("Tangent", 54, 2, 55, 2))
sketch2.addConstraint(Sketcher.Constraint("Tangent", 55, 1, 28, 1))
sketch2.addConstraint(Sketcher.Constraint("Vertical", 0))
sketch2.addConstraint(Sketcher.Constraint("Horizontal", 4))
sketch2.addConstraint(Sketcher.Constraint("Vertical", 8))
sketch2.addConstraint(Sketcher.Constraint("Vertical", 11))
sketch2.addConstraint(Sketcher.Constraint("Vertical", 14))
sketch2.addConstraint(Sketcher.Constraint("Horizontal", 18))
sketch2.addConstraint(Sketcher.Constraint("Vertical", 22))
sketch2.addConstraint(Sketcher.Constraint("Vertical", 25))
sketch2.addConstraint(Sketcher.Constraint("Vertical", 28))
sketch2.addConstraint(Sketcher.Constraint("Vertical", 31))
sketch2.addConstraint(Sketcher.Constraint("Vertical", 34))
sketch2.addConstraint(Sketcher.Constraint("Horizontal", 38))
sketch2.addConstraint(Sketcher.Constraint("Vertical", 42))
sketch2.addConstraint(Sketcher.Constraint("Vertical", 45))
sketch2.addConstraint(Sketcher.Constraint("Vertical", 48))
sketch2.addConstraint(Sketcher.Constraint("Horizontal", 52))
sketch2.addConstraint(Sketcher.Constraint("Coincident", 30, 3, 26, 3))
sketch2.addConstraint(Sketcher.Constraint("Coincident", 32, 3, 24, 3))
sketch2.addConstraint(Sketcher.Constraint("Coincident", 35, 3, 21, 3))
sketch2.addConstraint(Sketcher.Constraint("Coincident", 37, 3, 19, 3))
sketch2.addConstraint(Sketcher.Constraint("Coincident", 39, 3, 17, 3))
sketch2.addConstraint(Sketcher.Constraint("Coincident", 41, 3, 15, 3))
sketch2.addConstraint(Sketcher.Constraint("Coincident", 44, 3, 12, 3))
sketch2.addConstraint(Sketcher.Constraint("Coincident", 46, 3, 10, 3))
sketch2.addConstraint(Sketcher.Constraint("Coincident", 49, 3, 7, 3))
sketch2.addConstraint(Sketcher.Constraint("Coincident", 51, 3, 5, 3))
sketch2.addConstraint(Sketcher.Constraint("Coincident", 53, 3, 3, 3))
sketch2.addConstraint(Sketcher.Constraint("Coincident", 55, 3, 1, 3))
sketch2.addConstraint(Sketcher.Constraint("Equal", 1, 3))
sketch2.addConstraint(Sketcher.Constraint("Equal", 3, 5))
sketch2.addConstraint(Sketcher.Constraint("Equal", 5, 7))
sketch2.addConstraint(Sketcher.Constraint("Equal", 7, 10))
sketch2.addConstraint(Sketcher.Constraint("Equal", 10, 12))
sketch2.addConstraint(Sketcher.Constraint("Equal", 12, 15))
sketch2.addConstraint(Sketcher.Constraint("Equal", 15, 17))
sketch2.addConstraint(Sketcher.Constraint("Equal", 17, 19))
sketch2.addConstraint(Sketcher.Constraint("Equal", 19, 21))
sketch2.addConstraint(Sketcher.Constraint("Equal", 21, 24))
sketch2.addConstraint(Sketcher.Constraint("Equal", 24, 26))
sketch2.addConstraint(Sketcher.Constraint("Equal", 32, 35))
sketch2.addConstraint(Sketcher.Constraint("Equal", 35, 37))
sketch2.addConstraint(Sketcher.Constraint("Equal", 39, 41))
sketch2.addConstraint(Sketcher.Constraint("Equal", 41, 44))
sketch2.addConstraint(Sketcher.Constraint("Equal", 46, 49))
sketch2.addConstraint(Sketcher.Constraint("Equal", 49, 51))
sketch2.addConstraint(Sketcher.Constraint("Equal", 53, 55))
sketch2.addConstraint(Sketcher.Constraint("Perpendicular", 2, 6))
sketch2.addConstraint(Sketcher.Constraint("Parallel", 6, 9))
sketch2.addConstraint(Sketcher.Constraint("Perpendicular", 9, 13))
sketch2.addConstraint(Sketcher.Constraint("Parallel", 13, 16))
sketch2.addConstraint(Sketcher.Constraint("Perpendicular", 16, 20))
sketch2.addConstraint(Sketcher.Constraint("Parallel", 20, 23))
sketch2.addConstraint(Sketcher.Constraint("Perpendicular", 23, 27))
sketch2.addConstraint(Sketcher.Constraint("Parallel", 27, 29))
sketch2.addConstraint(Sketcher.Constraint("Perpendicular", 29, 33))
sketch2.addConstraint(Sketcher.Constraint("Parallel", 40, 43))
sketch2.addConstraint(Sketcher.Constraint("Perpendicular", 43, 47))
sketch2.addConstraint(Sketcher.Constraint("Horizontal", 1, 3, 7, 3))
sketch2.addConstraint(Sketcher.Constraint("Horizontal", 15, 3, 21, 3))
sketch2.addConstraint(Sketcher.Constraint("Horizontal", 12, 3, 24, 3))
sketch2.addConstraint(Sketcher.Constraint("Horizontal", 10, 3, 26, 3))
sketch2.addConstraint(Sketcher.Constraint("Horizontal", 2, 2, 5, 2))
sketch2.addConstraint(Sketcher.Constraint("Horizontal", 13, 2, 22, 2))
sketch2.addConstraint(Sketcher.Constraint("Horizontal", 8, 2, 27, 2))
sketch2.addConstraint(Sketcher.Constraint("Vertical", 7, 3, 15, 3))
sketch2.addConstraint(Sketcher.Constraint("Vertical", 5, 3, 17, 3))
sketch2.addConstraint(Sketcher.Constraint("Equal", 8, 14))
sketch2.addConstraint(Sketcher.Constraint("Radius", 1, 2.5))
sketch2.addConstraint(Sketcher.Constraint("Radius", 30, 1.5))
sketch2.addConstraint(Sketcher.Constraint("DistanceY", -1, 1, 3, 3, 3.0))
sketch2.addConstraint(Sketcher.Constraint("DistanceY", -1, 1, 17, 3, 50.0))
sketch2.addConstraint(Sketcher.Constraint("DistanceY", 0, 2, 0, 1, 0.52132))
sketch2.addConstraint(Sketcher.Constraint("DistanceY", 11, 1, 11, 2, 27.514719))
sketch2.addConstraint(Sketcher.Constraint("Distance", 9, 2.641421))
sketch2.addConstraint(Sketcher.Constraint("DistanceX", 4, 1, 4, 2, 52.828427))
sketch2.addConstraint(Sketcher.Constraint("DistanceX", 5, 3, -1, 1, 1.242641))
sketch2.setExpression("Constraints[123]", "Params.sketch2_radius")
sketch2.setExpression("Constraints[124]", "Params.sketch2_radius2")
pad2 = body.newObject("PartDesign::Pad", "Pad001")
pad2.Profile = sketch2
pad2.setExpression("Length", "Params.pad2_length")

doc.recompute()
